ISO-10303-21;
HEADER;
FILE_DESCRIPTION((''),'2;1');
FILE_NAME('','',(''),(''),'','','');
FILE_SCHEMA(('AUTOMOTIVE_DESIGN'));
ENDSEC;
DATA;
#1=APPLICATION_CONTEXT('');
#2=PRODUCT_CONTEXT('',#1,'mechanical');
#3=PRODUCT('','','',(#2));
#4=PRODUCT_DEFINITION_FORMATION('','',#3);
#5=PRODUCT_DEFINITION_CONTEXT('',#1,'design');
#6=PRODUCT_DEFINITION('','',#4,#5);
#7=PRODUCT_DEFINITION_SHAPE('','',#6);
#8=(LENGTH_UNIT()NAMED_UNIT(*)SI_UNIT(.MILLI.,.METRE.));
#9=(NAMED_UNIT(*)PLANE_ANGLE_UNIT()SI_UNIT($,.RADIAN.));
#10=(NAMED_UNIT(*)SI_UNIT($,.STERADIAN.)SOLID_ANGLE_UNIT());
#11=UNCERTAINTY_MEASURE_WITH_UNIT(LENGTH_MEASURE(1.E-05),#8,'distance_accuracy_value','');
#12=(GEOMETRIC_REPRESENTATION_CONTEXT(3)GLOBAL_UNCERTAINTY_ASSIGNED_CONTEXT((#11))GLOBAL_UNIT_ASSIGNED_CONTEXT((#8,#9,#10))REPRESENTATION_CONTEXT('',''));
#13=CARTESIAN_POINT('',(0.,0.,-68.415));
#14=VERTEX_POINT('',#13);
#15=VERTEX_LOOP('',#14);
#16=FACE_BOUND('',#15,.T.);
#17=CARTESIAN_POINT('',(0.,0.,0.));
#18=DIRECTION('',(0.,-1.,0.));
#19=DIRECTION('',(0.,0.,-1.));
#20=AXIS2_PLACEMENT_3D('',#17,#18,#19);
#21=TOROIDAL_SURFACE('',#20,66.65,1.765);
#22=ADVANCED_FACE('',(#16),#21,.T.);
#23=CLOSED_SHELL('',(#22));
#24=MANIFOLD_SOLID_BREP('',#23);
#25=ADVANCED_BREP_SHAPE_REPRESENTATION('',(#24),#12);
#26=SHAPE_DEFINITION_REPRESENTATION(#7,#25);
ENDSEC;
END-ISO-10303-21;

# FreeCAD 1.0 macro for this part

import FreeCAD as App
import Part
import Sketcher
from FreeCAD import Vector

doc = App.newDocument("Part")
body = doc.addObject("PartDesign::Body", "Body")

# Sketch on XY plane
sketch1 = doc.addObject("Sketcher::SketchObject", "Sketch")
body.addObject(sketch1)
sketch1.AttachmentSupport = (doc.XY_Plane, [""])
sketch1.MapMode = "FlatFace"
sketch1.addGeometry(Part.Circle(Vector(-66.7, 0, 0), Vector(0, 0, 1), 1.8), False)
sketch1.addConstraint(Sketcher.Constraint("PointOnObject", 0, 3, -1))
sketch1.addConstraint(Sketcher.Constraint("Diameter", 0, 3.53))
sketch1.addConstraint(Sketcher.Constraint("DistanceX", 0, 3, -1, 1, 66.65))
revolution = doc.addObject("PartDesign::Revolution", "Revolution")
body.addObject(revolution)
revolution.Profile = sketch1
revolution.ReferenceAxis = (sketch1, ["V_Axis"])
revolution.Angle = 360

doc.recompute()
